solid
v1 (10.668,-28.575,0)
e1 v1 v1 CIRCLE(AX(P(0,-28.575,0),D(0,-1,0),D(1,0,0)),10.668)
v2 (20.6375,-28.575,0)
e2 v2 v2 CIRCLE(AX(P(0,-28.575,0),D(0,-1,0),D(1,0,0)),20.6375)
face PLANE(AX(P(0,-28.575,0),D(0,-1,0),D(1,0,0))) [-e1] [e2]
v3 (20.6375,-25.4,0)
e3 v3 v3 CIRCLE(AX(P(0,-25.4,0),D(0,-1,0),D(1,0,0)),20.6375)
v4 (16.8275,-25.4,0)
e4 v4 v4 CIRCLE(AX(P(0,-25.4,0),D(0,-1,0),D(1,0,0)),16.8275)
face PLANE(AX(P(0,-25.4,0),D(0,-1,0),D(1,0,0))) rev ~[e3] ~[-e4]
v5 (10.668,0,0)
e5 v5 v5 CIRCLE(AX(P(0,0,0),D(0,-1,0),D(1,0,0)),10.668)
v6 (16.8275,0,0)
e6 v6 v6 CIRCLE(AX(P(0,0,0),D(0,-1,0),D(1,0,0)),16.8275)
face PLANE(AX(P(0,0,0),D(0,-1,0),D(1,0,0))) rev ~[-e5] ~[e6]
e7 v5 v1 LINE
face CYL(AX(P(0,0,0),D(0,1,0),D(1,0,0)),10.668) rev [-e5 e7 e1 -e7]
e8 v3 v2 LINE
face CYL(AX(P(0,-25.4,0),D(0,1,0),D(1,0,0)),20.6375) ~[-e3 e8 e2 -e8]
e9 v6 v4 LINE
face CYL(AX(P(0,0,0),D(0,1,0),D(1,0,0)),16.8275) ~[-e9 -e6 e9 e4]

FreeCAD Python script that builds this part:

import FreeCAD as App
import Part
import Sketcher
Q = App.Units.Quantity

doc = App.newDocument("Part")
body = doc.addObject("PartDesign::Body", "Body")

# Sketch on XZ plane
sketch1 = body.newObject("Sketcher::SketchObject", "Sketch")
sketch1.AttachmentSupport = (doc.getObject("XZ_Plane"), [""])
sketch1.MapMode = "FlatFace"
sketch1.addGeometry([
    Part.Circle(App.Vector(0, 0, 0), App.Vector(0, 0, 1), 17),
    Part.Circle(App.Vector(0, 0, 0), App.Vector(0, 0, 1), 11),
], False)
sketch1.addConstraint([
    Sketcher.Constraint("Coincident", 0, 3, -1, 1),
    Sketcher.Constraint("Coincident", 1, 3, -1, 1),
    Sketcher.Constraint("Diameter", 1, Q("0.84 in")),
    Sketcher.Constraint("Diameter", 0, Q("1.325 in")),
])
pad1 = body.newObject("PartDesign::Pad", "Pad")
pad1.Profile = sketch1
pad1.Length = Q("1.125 in")

# Sketch on XZ plane
sketch2 = body.newObject("Sketcher::SketchObject", "Sketch001")
sketch2.AttachmentSupport = (doc.getObject("XZ_Plane"), [""])
sketch2.MapMode = "FlatFace"
sketch2.AttachmentOffset = App.Placement(App.Vector(0, 0, 1 * 25.4), App.Rotation())
sketch2.addGeometry([
    Part.Circle(App.Vector(0, 0, 0), App.Vector(0, 0, 1), 21),
    Part.Circle(App.Vector(0, 0, 0), App.Vector(0, 0, 1), 17),
], False)
sketch2.addConstraint([
    Sketcher.Constraint("Coincident", 0, 3, -1, 1),
    Sketcher.Constraint("Coincident", 1, 3, -1, 1),
    Sketcher.Constraint("Diameter", 0, Q("1.625 in")),
    Sketcher.Constraint("Diameter", 1, Q("1.325 in")),
])
pad2 = body.newObject("PartDesign::Pad", "Pad001")
pad2.Profile = sketch2
pad2.Length = Q("0.125 in")

doc.recompute()
